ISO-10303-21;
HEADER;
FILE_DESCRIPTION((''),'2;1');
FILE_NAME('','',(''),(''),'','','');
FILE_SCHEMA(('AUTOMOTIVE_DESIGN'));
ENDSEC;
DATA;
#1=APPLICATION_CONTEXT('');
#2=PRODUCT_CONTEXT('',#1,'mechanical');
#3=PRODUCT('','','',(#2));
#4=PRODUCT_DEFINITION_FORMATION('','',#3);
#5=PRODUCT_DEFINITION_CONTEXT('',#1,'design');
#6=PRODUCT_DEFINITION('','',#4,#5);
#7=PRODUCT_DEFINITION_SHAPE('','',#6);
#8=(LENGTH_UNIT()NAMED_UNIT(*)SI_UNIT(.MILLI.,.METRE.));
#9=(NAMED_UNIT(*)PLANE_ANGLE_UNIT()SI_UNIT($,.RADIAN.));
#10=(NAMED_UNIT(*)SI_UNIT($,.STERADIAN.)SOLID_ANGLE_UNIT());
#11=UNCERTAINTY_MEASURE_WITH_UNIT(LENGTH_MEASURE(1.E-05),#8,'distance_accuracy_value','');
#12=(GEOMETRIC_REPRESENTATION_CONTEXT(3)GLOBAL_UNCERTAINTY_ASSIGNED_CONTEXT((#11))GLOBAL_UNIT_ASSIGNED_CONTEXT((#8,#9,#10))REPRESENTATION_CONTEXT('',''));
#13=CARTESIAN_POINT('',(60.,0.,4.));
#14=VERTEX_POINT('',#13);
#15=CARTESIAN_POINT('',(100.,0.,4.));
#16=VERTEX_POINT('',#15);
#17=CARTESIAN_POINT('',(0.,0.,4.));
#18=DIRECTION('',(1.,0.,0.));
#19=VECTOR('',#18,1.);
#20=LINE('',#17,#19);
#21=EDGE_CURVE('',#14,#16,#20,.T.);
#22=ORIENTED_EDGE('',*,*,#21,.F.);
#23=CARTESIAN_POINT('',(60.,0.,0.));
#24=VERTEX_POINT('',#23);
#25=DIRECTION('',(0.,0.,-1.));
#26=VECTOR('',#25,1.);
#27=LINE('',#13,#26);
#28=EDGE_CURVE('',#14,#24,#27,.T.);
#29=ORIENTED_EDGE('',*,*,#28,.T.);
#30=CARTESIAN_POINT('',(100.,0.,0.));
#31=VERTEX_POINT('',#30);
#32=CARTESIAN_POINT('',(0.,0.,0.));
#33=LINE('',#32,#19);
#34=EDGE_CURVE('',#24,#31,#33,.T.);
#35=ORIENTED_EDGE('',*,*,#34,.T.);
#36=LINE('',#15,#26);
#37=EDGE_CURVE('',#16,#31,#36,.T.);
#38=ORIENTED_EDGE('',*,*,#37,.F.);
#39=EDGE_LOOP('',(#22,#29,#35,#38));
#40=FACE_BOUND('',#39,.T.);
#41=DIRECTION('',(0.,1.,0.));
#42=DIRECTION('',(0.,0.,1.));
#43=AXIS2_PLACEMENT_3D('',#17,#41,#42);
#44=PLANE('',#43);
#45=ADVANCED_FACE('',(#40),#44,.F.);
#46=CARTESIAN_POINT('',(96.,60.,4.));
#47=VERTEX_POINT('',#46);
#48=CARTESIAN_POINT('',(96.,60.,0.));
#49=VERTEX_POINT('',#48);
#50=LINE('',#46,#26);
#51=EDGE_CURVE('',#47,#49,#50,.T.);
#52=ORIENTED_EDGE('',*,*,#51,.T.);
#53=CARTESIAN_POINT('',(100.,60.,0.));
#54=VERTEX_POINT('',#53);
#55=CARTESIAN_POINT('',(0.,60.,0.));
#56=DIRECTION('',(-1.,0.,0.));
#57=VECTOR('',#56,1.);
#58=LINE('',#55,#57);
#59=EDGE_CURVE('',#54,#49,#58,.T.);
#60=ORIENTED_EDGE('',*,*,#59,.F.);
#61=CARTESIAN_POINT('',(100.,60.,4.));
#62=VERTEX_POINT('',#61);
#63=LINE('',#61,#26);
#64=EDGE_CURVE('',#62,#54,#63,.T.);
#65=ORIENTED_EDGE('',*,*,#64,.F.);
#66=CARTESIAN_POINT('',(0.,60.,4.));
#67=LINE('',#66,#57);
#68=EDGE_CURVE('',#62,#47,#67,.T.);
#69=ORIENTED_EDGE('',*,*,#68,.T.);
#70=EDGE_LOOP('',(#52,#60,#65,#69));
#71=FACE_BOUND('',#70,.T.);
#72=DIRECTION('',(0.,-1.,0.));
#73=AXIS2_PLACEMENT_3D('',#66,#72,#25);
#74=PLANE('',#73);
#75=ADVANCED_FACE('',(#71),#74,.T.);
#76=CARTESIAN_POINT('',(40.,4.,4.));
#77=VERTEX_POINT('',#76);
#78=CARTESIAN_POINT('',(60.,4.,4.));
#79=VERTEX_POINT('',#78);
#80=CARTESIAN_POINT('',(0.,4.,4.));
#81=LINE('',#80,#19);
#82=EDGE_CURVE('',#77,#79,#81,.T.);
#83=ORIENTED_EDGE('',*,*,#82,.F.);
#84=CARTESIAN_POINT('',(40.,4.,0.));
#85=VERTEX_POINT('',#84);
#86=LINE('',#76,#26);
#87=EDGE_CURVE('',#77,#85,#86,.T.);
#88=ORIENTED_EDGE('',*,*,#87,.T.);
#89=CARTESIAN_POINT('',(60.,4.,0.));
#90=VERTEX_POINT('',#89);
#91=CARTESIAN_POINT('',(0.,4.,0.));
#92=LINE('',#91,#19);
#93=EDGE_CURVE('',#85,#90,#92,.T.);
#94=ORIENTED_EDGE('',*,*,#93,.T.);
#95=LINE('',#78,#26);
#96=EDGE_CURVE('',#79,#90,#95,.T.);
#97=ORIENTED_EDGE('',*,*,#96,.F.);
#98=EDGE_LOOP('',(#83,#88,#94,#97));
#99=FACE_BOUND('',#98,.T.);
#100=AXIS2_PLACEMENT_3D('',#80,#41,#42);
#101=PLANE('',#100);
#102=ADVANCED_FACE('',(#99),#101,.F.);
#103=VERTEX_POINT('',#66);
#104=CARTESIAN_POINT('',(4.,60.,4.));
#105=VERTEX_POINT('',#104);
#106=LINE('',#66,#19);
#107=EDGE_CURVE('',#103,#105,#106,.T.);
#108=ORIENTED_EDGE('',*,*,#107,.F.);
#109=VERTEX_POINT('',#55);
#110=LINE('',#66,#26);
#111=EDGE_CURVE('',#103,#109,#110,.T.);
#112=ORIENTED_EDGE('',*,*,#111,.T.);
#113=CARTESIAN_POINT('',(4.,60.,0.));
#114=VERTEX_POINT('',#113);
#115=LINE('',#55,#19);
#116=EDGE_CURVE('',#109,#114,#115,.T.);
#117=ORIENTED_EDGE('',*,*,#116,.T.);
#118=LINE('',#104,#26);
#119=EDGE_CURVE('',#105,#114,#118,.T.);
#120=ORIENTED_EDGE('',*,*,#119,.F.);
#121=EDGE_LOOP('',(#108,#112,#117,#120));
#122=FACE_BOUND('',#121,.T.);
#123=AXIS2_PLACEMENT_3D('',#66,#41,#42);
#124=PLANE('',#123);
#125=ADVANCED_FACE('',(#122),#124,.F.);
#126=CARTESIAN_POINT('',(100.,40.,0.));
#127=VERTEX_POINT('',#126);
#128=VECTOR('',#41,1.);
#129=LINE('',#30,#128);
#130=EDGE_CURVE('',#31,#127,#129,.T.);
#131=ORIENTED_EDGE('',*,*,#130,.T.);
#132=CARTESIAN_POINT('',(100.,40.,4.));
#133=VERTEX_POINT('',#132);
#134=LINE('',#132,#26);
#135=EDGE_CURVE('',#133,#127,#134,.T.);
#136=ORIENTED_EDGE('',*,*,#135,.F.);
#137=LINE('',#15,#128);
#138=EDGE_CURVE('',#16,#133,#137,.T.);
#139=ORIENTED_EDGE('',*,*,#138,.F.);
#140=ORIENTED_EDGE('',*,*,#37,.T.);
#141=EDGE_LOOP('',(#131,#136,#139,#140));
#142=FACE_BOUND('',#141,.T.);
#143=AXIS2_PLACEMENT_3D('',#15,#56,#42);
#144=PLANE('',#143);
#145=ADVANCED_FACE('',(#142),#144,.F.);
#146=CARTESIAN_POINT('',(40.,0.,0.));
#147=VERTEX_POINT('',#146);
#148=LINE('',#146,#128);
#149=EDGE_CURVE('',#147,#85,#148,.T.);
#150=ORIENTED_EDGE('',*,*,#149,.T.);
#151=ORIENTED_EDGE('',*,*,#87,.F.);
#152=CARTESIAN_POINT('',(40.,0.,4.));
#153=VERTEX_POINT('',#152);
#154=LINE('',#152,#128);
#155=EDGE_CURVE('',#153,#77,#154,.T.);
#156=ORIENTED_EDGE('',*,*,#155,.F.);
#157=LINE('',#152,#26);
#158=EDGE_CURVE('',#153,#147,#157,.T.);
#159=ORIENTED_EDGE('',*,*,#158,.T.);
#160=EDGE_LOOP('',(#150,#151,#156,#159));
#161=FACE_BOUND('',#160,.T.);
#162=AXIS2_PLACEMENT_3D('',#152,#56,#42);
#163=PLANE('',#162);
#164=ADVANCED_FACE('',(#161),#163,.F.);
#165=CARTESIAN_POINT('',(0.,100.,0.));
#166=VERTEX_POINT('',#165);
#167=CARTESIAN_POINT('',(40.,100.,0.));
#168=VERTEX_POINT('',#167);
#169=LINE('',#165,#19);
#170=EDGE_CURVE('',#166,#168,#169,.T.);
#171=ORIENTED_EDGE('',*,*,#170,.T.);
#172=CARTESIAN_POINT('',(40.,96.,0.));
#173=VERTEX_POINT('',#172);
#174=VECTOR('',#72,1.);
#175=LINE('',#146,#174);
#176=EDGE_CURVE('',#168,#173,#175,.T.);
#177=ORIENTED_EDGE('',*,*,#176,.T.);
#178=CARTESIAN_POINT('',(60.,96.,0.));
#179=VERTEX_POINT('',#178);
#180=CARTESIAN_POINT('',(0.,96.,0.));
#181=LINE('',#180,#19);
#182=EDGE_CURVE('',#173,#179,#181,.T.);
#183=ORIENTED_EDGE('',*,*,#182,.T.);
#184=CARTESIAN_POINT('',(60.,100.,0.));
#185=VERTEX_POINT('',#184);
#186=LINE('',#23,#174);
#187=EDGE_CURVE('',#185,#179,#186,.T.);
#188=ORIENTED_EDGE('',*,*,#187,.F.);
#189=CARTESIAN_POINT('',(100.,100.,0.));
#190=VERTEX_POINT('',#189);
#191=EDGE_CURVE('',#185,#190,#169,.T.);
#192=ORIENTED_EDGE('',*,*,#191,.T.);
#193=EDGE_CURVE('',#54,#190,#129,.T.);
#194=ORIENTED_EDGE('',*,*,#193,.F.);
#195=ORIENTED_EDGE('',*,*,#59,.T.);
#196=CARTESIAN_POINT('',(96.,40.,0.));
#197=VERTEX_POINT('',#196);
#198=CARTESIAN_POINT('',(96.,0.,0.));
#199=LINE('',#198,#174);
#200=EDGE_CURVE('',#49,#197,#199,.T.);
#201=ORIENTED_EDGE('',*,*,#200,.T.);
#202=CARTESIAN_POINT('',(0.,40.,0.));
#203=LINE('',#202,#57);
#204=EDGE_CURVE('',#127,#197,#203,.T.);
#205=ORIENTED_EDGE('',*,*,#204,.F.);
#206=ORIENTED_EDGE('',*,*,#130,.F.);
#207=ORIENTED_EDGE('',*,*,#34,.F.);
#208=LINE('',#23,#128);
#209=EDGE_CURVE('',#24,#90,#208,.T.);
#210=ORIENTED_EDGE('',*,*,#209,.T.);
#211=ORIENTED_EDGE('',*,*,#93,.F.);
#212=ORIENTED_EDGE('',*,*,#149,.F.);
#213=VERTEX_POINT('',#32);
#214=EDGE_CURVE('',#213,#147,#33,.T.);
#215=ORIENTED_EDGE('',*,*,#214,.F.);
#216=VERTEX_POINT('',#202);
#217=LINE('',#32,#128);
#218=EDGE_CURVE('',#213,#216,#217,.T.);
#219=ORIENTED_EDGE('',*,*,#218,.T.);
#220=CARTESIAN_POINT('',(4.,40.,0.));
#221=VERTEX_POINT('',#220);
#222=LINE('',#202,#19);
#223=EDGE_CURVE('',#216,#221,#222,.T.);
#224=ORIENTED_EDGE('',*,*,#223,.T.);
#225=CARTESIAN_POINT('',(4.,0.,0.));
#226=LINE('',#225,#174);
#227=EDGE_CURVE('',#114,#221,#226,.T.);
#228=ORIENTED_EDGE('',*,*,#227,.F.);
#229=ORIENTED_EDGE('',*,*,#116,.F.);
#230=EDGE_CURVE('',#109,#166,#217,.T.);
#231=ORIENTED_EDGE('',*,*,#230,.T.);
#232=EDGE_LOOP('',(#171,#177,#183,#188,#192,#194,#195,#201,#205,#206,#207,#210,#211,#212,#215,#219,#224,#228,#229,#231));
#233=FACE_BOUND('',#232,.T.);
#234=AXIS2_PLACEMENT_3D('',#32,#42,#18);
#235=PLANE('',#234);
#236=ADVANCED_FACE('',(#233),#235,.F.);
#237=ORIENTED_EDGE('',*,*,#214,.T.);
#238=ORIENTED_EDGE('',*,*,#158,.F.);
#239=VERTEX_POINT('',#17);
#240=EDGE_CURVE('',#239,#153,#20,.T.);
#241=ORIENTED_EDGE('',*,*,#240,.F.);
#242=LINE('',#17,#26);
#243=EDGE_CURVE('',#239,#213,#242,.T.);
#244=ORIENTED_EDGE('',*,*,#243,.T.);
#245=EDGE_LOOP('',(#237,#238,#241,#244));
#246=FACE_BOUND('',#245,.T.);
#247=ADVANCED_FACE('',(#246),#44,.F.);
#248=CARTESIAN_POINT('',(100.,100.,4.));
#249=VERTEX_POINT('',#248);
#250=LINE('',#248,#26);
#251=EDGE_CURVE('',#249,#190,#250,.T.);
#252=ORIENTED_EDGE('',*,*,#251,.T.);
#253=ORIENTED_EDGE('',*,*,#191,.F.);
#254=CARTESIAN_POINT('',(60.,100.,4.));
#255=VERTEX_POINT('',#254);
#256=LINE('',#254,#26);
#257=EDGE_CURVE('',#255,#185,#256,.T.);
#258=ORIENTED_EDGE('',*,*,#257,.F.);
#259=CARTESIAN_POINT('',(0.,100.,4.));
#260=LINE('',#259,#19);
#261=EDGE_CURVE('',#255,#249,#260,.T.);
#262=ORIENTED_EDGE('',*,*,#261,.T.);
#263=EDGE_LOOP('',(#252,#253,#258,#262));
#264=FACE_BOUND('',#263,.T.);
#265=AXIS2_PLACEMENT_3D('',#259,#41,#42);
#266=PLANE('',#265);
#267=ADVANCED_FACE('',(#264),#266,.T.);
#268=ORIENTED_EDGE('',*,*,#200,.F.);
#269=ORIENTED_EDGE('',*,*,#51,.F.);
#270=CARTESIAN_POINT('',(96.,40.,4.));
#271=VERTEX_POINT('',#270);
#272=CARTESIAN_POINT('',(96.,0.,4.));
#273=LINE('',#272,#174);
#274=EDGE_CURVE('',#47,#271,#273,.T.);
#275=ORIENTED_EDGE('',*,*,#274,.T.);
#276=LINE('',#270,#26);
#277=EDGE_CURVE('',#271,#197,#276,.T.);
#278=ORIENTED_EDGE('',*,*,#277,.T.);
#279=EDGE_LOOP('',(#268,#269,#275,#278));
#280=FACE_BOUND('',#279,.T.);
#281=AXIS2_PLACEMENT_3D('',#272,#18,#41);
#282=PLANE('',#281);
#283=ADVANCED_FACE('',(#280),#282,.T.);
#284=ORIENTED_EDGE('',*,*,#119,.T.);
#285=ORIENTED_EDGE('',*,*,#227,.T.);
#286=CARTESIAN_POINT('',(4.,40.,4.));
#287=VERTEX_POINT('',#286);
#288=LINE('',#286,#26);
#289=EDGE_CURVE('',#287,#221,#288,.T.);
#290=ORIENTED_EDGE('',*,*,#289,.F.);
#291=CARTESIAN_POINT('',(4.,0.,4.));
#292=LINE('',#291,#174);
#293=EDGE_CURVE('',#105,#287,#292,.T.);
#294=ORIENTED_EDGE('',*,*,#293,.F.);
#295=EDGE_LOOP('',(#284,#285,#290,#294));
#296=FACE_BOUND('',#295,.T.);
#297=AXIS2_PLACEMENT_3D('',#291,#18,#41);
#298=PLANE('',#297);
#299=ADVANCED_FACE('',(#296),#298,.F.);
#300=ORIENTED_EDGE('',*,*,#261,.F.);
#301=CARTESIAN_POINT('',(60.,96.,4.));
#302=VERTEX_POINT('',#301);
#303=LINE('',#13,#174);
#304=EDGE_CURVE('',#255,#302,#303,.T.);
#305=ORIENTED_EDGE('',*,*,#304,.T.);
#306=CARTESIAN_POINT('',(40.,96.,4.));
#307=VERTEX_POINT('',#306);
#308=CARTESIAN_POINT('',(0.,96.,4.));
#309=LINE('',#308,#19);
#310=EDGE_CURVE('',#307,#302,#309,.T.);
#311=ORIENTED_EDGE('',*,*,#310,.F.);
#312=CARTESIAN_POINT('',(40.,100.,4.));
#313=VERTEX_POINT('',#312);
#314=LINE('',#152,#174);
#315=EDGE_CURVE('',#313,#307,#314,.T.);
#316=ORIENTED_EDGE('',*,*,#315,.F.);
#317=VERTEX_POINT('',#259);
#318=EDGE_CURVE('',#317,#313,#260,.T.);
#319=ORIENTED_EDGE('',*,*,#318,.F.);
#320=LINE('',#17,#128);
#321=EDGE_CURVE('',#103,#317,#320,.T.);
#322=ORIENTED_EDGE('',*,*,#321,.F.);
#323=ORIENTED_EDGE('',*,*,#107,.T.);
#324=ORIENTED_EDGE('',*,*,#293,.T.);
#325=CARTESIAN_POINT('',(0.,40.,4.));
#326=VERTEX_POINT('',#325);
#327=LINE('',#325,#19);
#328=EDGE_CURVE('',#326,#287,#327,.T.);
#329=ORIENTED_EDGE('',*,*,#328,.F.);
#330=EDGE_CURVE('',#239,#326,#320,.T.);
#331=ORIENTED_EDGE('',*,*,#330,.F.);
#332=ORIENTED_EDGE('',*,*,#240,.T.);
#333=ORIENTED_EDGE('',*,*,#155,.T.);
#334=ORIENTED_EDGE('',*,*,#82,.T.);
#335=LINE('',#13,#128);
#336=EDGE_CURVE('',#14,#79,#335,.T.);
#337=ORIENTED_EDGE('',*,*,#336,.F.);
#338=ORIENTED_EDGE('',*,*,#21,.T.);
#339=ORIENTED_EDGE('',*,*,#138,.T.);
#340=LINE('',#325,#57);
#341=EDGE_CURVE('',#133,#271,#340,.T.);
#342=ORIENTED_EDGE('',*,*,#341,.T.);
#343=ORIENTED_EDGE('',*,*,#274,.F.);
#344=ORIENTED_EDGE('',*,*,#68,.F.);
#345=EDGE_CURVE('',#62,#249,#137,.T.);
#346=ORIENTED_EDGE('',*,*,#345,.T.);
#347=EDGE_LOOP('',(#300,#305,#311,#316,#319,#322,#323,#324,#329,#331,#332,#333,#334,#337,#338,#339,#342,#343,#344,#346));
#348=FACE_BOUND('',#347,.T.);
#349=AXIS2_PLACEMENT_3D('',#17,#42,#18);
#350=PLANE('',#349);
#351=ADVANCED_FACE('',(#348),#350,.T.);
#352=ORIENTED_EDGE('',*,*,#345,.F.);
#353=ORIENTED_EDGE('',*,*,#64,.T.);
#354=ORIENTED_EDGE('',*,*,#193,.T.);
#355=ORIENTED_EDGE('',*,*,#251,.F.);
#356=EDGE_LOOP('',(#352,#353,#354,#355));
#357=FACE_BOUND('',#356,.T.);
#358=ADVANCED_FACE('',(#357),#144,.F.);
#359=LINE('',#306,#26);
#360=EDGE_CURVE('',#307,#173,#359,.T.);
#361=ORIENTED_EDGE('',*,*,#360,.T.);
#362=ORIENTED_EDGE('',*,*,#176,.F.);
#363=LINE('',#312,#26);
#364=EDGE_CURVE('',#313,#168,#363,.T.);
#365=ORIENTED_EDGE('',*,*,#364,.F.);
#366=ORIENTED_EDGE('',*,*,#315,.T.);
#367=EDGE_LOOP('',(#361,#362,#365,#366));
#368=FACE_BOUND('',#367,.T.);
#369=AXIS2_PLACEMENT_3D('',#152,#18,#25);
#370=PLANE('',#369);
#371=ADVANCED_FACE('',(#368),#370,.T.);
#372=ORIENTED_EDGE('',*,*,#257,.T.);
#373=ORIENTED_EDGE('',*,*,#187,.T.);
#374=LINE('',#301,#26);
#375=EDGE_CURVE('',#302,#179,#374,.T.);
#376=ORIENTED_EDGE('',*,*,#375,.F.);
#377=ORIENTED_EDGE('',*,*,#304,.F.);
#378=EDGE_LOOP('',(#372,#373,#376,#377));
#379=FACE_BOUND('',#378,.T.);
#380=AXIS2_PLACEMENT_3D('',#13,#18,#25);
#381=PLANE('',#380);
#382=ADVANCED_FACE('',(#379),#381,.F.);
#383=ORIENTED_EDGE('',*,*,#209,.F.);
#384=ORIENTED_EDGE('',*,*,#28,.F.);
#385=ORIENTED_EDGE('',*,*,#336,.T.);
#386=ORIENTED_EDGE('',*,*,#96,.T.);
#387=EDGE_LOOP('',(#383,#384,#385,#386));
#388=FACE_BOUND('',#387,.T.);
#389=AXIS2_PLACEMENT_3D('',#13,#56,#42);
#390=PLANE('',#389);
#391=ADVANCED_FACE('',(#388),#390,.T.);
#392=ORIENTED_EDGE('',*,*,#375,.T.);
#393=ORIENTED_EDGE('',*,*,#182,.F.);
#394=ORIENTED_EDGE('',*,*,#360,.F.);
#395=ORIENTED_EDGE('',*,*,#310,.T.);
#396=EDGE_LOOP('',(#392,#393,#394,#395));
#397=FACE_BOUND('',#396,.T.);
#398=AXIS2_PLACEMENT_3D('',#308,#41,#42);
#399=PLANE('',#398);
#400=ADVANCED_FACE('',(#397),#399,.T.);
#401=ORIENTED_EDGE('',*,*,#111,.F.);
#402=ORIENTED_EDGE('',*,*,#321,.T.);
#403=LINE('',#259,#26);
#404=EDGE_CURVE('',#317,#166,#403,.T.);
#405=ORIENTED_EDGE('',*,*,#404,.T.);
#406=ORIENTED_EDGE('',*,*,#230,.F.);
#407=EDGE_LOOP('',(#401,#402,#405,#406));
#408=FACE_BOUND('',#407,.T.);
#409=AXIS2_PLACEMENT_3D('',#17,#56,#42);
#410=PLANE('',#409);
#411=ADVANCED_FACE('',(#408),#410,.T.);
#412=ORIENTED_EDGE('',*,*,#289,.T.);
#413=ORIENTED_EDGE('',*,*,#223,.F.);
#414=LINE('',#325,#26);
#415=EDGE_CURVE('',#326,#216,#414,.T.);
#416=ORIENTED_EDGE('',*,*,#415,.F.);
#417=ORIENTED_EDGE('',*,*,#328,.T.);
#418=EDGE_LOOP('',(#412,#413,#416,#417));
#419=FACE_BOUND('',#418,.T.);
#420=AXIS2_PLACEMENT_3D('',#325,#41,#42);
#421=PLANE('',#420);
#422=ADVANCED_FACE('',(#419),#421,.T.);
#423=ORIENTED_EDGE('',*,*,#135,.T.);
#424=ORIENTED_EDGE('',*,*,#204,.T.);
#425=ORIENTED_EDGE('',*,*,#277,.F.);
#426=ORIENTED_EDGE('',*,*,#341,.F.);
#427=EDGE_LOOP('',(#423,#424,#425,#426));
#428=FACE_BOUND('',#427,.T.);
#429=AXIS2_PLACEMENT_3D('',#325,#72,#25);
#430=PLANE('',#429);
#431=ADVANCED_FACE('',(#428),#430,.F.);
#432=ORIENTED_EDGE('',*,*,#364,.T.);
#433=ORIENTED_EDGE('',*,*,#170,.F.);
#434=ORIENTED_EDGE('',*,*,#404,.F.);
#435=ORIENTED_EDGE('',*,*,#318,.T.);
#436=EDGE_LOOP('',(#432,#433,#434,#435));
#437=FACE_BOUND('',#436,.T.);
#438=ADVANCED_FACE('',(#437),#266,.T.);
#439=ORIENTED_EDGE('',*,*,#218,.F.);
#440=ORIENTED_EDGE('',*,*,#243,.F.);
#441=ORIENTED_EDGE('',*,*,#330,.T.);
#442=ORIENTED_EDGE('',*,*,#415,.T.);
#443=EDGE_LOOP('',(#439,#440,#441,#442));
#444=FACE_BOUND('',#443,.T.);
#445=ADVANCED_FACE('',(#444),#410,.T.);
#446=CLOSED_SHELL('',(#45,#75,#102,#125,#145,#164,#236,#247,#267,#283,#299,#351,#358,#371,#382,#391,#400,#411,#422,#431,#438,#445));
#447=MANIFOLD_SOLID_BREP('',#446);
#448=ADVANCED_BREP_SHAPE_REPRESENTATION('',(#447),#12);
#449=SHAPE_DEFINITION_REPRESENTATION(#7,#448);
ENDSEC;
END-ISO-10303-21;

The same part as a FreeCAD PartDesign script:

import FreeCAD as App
import Part
import Sketcher
from FreeCAD import Vector

doc = App.newDocument("Part")
body = doc.addObject("PartDesign::Body", "Body")

sketch1 = doc.addObject("Sketcher::SketchObject", "Sketch")
body.addObject(sketch1)
sketch1.AttachmentSupport = (doc.XY_Plane, [""])
sketch1.MapMode = "FlatFace"
sketch1.addGeometry(Part.LineSegment(Vector(0, 40, 0), Vector(0, 0, 0)), False)
sketch1.addGeometry(Part.LineSegment(Vector(0, 0, 0), Vector(40, 0, 0)), False)
sketch1.addGeometry(Part.LineSegment(Vector(40, 0, 0), Vector(40, 4, 0)), False)
sketch1.addGeometry(Part.LineSegment(Vector(40, 4, 0), Vector(60, 4, 0)), False)
sketch1.addGeometry(Part.LineSegment(Vector(60, 4, 0), Vector(60, 0, 0)), False)
sketch1.addGeometry(Part.LineSegment(Vector(60, 0, 0), Vector(100, 0, 0)), False)
sketch1.addGeometry(Part.LineSegment(Vector(100, 0, 0), Vector(100, 40, 0)), False)
sketch1.addGeometry(Part.LineSegment(Vector(100, 40, 0), Vector(96, 40, 0)), False)
sketch1.addGeometry(Part.LineSegment(Vector(96, 40, 0), Vector(96, 60, 0)), False)
sketch1.addGeometry(Part.LineSegment(Vector(96, 60, 0), Vector(100, 60, 0)), False)
sketch1.addGeometry(Part.LineSegment(Vector(100, 60, 0), Vector(100, 100, 0)), False)
sketch1.addGeometry(Part.LineSegment(Vector(100, 100, 0), Vector(60, 100, 0)), False)
sketch1.addGeometry(Part.LineSegment(Vector(60, 100, 0), Vector(60, 96, 0)), False)
sketch1.addGeometry(Part.LineSegment(Vector(60, 96, 0), Vector(40, 96, 0)), False)
sketch1.addGeometry(Part.LineSegment(Vector(40, 96, 0), Vector(40, 100, 0)), False)
sketch1.addGeometry(Part.LineSegment(Vector(40, 100, 0), Vector(0, 100, 0)), False)
sketch1.addGeometry(Part.LineSegment(Vector(0, 100, 0), Vector(0, 60, 0)), False)
sketch1.addGeometry(Part.LineSegment(Vector(0, 60, 0), Vector(4, 60, 0)), False)
sketch1.addGeometry(Part.LineSegment(Vector(4, 60, 0), Vector(4, 40, 0)), False)
sketch1.addGeometry(Part.LineSegment(Vector(4, 40, 0), Vector(0, 40, 0)), False)
sketch1.addConstraint(Sketcher.Constraint("Coincident", 0, 2, 1, 1))
sketch1.addConstraint(Sketcher.Constraint("Coincident", 1, 2, 2, 1))
sketch1.addConstraint(Sketcher.Constraint("Coincident", 2, 2, 3, 1))
sketch1.addConstraint(Sketcher.Constraint("Coincident", 3, 2, 4, 1))
sketch1.addConstraint(Sketcher.Constraint("Coincident", 4, 2, 5, 1))
sketch1.addConstraint(Sketcher.Constraint("Coincident", 5, 2, 6, 1))
sketch1.addConstraint(Sketcher.Constraint("Coincident", 6, 2, 7, 1))
sketch1.addConstraint(Sketcher.Constraint("Coincident", 7, 2, 8, 1))
sketch1.addConstraint(Sketcher.Constraint("Coincident", 8, 2, 9, 1))
sketch1.addConstraint(Sketcher.Constraint("Coincident", 9, 2, 10, 1))
sketch1.addConstraint(Sketcher.Constraint("Coincident", 10, 2, 11, 1))
sketch1.addConstraint(Sketcher.Constraint("Coincident", 11, 2, 12, 1))
sketch1.addConstraint(Sketcher.Constraint("Coincident", 12, 2, 13, 1))
sketch1.addConstraint(Sketcher.Constraint("Coincident", 13, 2, 14, 1))
sketch1.addConstraint(Sketcher.Constraint("Coincident", 14, 2, 15, 1))
sketch1.addConstraint(Sketcher.Constraint("Coincident", 15, 2, 16, 1))
sketch1.addConstraint(Sketcher.Constraint("Coincident", 16, 2, 17, 1))
sketch1.addConstraint(Sketcher.Constraint("Coincident", 17, 2, 18, 1))
sketch1.addConstraint(Sketcher.Constraint("Coincident", 18, 2, 19, 1))
sketch1.addConstraint(Sketcher.Constraint("Coincident", 19, 2, 0, 1))
sketch1.addConstraint(Sketcher.Constraint("Vertical", 0))
sketch1.addConstraint(Sketcher.Constraint("Horizontal", 1))
sketch1.addConstraint(Sketcher.Constraint("Vertical", 2))
sketch1.addConstraint(Sketcher.Constraint("Horizontal", 3))
sketch1.addConstraint(Sketcher.Constraint("Vertical", 4))
sketch1.addConstraint(Sketcher.Constraint("Horizontal", 5))
sketch1.addConstraint(Sketcher.Constraint("Vertical", 6))
sketch1.addConstraint(Sketcher.Constraint("Horizontal", 7))
sketch1.addConstraint(Sketcher.Constraint("Vertical", 8))
sketch1.addConstraint(Sketcher.Constraint("Horizontal", 9))
sketch1.addConstraint(Sketcher.Constraint("Vertical", 10))
sketch1.addConstraint(Sketcher.Constraint("Horizontal", 11))
sketch1.addConstraint(Sketcher.Constraint("Vertical", 12))
sketch1.addConstraint(Sketcher.Constraint("Horizontal", 13))
sketch1.addConstraint(Sketcher.Constraint("Vertical", 14))
sketch1.addConstraint(Sketcher.Constraint("Horizontal", 15))
sketch1.addConstraint(Sketcher.Constraint("Vertical", 16))
sketch1.addConstraint(Sketcher.Constraint("Horizontal", 17))
sketch1.addConstraint(Sketcher.Constraint("Vertical", 18))
sketch1.addConstraint(Sketcher.Constraint("Horizontal", 19))
sketch1.addConstraint(Sketcher.Constraint("Coincident", 0, 2, -1, 1))
sketch1.addConstraint(Sketcher.Constraint("PointOnObject", 4, 2, -1))
sketch1.addConstraint(Sketcher.Constraint("PointOnObject", 15, 2, -2))
sketch1.addConstraint(Sketcher.Constraint("Horizontal", 11, 2, 14, 2))
sketch1.addConstraint(Sketcher.Constraint("Horizontal", 9, 2, 16, 2))
sketch1.addConstraint(Sketcher.Constraint("Horizontal", 7, 2, 18, 2))
sketch1.addConstraint(Sketcher.Constraint("Vertical", 6, 2, 9, 2))
sketch1.addConstraint(Sketcher.Constraint("Vertical", 4, 2, 11, 2))
sketch1.addConstraint(Sketcher.Constraint("Vertical", 2, 2, 13, 2))
sketch1.addConstraint(Sketcher.Constraint("Equal", 1, 5))
sketch1.addConstraint(Sketcher.Constraint("Equal", 9, 17))
sketch1.addConstraint(Sketcher.Constraint("Equal", 15, 0))
sketch1.addConstraint(Sketcher.Constraint("Equal", 19, 2))
sketch1.addConstraint(Sketcher.Constraint("Equal", 13, 8))
sketch1.addConstraint(Sketcher.Constraint("Equal", 6, 10))
sketch1.addConstraint(Sketcher.Constraint("Equal", 4, 12))
sketch1.addConstraint(Sketcher.Constraint("DistanceX", 1, 1, 1, 2, 40.0))
sketch1.addConstraint(Sketcher.Constraint("DistanceX", 3, 1, 3, 2, 20.0))
sketch1.addConstraint(Sketcher.Constraint("DistanceX", 7, 2, 7, 1, 4.0))
pad1 = doc.addObject("PartDesign::Pad", "Pad")
body.addObject(pad1)
pad1.Profile = sketch1
pad1.Length = 4

doc.recompute()
